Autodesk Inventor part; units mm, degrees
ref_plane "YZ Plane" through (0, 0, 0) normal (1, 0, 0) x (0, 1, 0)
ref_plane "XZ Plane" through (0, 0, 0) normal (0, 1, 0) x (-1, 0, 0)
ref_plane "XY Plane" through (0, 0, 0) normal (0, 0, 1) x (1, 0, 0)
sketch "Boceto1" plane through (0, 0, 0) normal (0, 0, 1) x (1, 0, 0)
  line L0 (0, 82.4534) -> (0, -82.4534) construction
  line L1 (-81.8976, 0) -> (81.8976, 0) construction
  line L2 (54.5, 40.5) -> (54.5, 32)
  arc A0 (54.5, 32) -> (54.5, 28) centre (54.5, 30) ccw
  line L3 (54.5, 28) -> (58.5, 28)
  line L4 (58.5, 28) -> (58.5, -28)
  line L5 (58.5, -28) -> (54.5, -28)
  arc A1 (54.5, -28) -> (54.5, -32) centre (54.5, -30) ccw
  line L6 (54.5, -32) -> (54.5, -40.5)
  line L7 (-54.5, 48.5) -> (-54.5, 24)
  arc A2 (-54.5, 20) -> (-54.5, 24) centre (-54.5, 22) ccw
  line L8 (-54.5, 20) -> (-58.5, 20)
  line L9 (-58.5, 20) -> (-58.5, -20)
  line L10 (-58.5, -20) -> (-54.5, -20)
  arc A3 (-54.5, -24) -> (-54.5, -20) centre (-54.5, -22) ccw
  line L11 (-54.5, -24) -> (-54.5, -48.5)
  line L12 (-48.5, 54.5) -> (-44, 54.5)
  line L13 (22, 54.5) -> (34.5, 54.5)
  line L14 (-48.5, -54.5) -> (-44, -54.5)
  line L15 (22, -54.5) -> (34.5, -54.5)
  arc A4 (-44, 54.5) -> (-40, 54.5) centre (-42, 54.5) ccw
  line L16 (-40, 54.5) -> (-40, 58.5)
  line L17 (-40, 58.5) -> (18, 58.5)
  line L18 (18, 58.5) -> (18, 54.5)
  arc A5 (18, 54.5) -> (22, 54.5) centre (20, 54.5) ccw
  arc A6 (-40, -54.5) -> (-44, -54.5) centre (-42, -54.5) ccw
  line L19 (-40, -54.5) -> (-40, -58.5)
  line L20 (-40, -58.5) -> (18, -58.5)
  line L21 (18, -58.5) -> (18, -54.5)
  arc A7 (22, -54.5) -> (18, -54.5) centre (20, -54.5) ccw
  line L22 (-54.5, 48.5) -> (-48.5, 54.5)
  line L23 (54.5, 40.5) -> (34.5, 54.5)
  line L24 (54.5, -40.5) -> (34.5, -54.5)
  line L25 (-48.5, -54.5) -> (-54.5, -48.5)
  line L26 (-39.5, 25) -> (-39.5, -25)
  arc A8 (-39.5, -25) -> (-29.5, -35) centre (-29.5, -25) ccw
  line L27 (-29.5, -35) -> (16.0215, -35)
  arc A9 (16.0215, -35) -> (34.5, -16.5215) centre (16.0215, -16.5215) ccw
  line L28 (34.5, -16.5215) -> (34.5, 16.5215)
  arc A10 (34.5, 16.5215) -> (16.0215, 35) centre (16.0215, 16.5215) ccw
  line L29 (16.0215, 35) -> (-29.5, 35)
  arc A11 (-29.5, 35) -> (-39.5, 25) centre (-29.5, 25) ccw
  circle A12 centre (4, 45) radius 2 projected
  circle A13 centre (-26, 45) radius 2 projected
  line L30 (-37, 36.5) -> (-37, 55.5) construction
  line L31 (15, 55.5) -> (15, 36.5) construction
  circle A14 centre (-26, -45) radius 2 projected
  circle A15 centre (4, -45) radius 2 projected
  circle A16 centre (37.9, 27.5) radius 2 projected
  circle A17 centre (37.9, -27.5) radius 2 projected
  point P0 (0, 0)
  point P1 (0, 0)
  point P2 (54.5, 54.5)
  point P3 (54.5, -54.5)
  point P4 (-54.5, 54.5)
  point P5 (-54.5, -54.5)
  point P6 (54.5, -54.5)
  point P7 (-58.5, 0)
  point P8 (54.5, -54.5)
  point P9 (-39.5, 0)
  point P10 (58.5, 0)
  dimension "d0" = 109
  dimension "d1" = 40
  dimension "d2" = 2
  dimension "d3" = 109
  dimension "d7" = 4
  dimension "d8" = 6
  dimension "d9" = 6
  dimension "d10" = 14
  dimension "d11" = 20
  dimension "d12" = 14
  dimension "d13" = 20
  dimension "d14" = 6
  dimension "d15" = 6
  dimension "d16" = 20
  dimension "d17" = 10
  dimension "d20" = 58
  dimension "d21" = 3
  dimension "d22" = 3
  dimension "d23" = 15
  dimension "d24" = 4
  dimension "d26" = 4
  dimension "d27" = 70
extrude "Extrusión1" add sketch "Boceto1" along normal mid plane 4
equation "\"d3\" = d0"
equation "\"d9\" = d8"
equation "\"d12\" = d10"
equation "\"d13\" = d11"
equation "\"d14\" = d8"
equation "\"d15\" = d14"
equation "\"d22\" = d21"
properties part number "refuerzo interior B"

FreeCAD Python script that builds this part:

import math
import FreeCAD as App
import Part
import Sketcher
from FreeCAD import Vector

doc = App.newDocument("Part")
body = doc.addObject("PartDesign::Body", "Body")

sketch1 = body.newObject("Sketcher::SketchObject", "Sketch")
sketch1.AttachmentSupport = (doc.getObject("XY_Plane"), [""])
sketch1.MapMode = "FlatFace"
sketch1.addGeometry(Part.LineSegment(Vector(54.5, 32, 0), Vector(54.5, 40.5, 0)), False)
sketch1.addGeometry(Part.LineSegment(Vector(54.5, 40.5, 0), Vector(34.5, 54.5, 0)), False)
sketch1.addGeometry(Part.LineSegment(Vector(34.5, 54.5, 0), Vector(22, 54.5, 0)), False)
sketch1.addGeometry(Part.ArcOfCircle(Part.Circle(Vector(20, 54.5, 0), Vector(0, 0, 1), 2), math.radians(180), math.radians(360)), False)
sketch1.addGeometry(Part.LineSegment(Vector(18, 54.5, 0), Vector(18, 58.5, 0)), False)
sketch1.addGeometry(Part.LineSegment(Vector(18, 58.5, 0), Vector(-40, 58.5, 0)), False)
sketch1.addGeometry(Part.LineSegment(Vector(-40, 58.5, 0), Vector(-40, 54.5, 0)), False)
sketch1.addGeometry(Part.ArcOfCircle(Part.Circle(Vector(-42, 54.5, 0), Vector(0, 0, 1), 2), math.radians(180), math.radians(360)), False)
sketch1.addGeometry(Part.LineSegment(Vector(-44, 54.5, 0), Vector(-48.5, 54.5, 0)), False)
sketch1.addGeometry(Part.LineSegment(Vector(-48.5, 54.5, 0), Vector(-54.5, 48.5, 0)), False)
sketch1.addGeometry(Part.LineSegment(Vector(-54.5, 48.5, 0), Vector(-54.5, 24, 0)), False)
sketch1.addGeometry(Part.ArcOfCircle(Part.Circle(Vector(-54.5, 22, 0), Vector(0, 0, 1), 2), math.radians(-90), math.radians(90)), False)
sketch1.addGeometry(Part.LineSegment(Vector(-54.5, 20, 0), Vector(-58.5, 20, 0)), False)
sketch1.addGeometry(Part.LineSegment(Vector(-58.5, 20, 0), Vector(-58.5, -20, 0)), False)
sketch1.addGeometry(Part.LineSegment(Vector(-58.5, -20, 0), Vector(-54.5, -20, 0)), False)
sketch1.addGeometry(Part.ArcOfCircle(Part.Circle(Vector(-54.5, -22, 0), Vector(0, 0, 1), 2), math.radians(-90), math.radians(90)), False)
sketch1.addGeometry(Part.LineSegment(Vector(-54.5, -24, 0), Vector(-54.5, -48.5, 0)), False)
sketch1.addGeometry(Part.LineSegment(Vector(-54.5, -48.5, 0), Vector(-48.5, -54.5, 0)), False)
sketch1.addGeometry(Part.LineSegment(Vector(-48.5, -54.5, 0), Vector(-44, -54.5, 0)), False)
sketch1.addGeometry(Part.ArcOfCircle(Part.Circle(Vector(-42, -54.5, 0), Vector(0, 0, 1), 2), math.radians(0), math.radians(180)), False)
sketch1.addGeometry(Part.LineSegment(Vector(-40, -54.5, 0), Vector(-40, -58.5, 0)), False)
sketch1.addGeometry(Part.LineSegment(Vector(-40, -58.5, 0), Vector(18, -58.5, 0)), False)
sketch1.addGeometry(Part.LineSegment(Vector(18, -58.5, 0), Vector(18, -54.5, 0)), False)
sketch1.addGeometry(Part.ArcOfCircle(Part.Circle(Vector(20, -54.5, 0), Vector(0, 0, 1), 2), math.radians(0), math.radians(180)), False)
sketch1.addGeometry(Part.LineSegment(Vector(22, -54.5, 0), Vector(34.5, -54.5, 0)), False)
sketch1.addGeometry(Part.LineSegment(Vector(34.5, -54.5, 0), Vector(54.5, -40.5, 0)), False)
sketch1.addGeometry(Part.LineSegment(Vector(54.5, -40.5, 0), Vector(54.5, -32, 0)), False)
sketch1.addGeometry(Part.ArcOfCircle(Part.Circle(Vector(54.5, -30, 0), Vector(0, 0, 1), 2), math.radians(90), math.radians(270)), False)
sketch1.addGeometry(Part.LineSegment(Vector(54.5, -28, 0), Vector(58.5, -28, 0)), False)
sketch1.addGeometry(Part.LineSegment(Vector(58.5, -28, 0), Vector(58.5, 28, 0)), False)
sketch1.addGeometry(Part.LineSegment(Vector(58.5, 28, 0), Vector(54.5, 28, 0)), False)
sketch1.addGeometry(Part.ArcOfCircle(Part.Circle(Vector(54.5, 30, 0), Vector(0, 0, 1), 2), math.radians(90), math.radians(270)), False)
sketch1.addGeometry(Part.Circle(Vector(-26, -45, 0), Vector(0, 0, 1), 2), False)
sketch1.addGeometry(Part.Circle(Vector(4, -45, 0), Vector(0, 0, 1), 2), False)
sketch1.addGeometry(Part.Circle(Vector(37.9, -27.5, 0), Vector(0, 0, 1), 2), False)
sketch1.addGeometry(Part.LineSegment(Vector(-39.5, -25, 0), Vector(-39.5, 25, 0)), False)
sketch1.addGeometry(Part.ArcOfCircle(Part.Circle(Vector(-29.5, 25, 0), Vector(0, 0, 1), 10), math.radians(90), math.radians(180)), False)
sketch1.addGeometry(Part.LineSegment(Vector(-29.5, 35, 0), Vector(16.0215, 35, 0)), False)
sketch1.addGeometry(Part.ArcOfCircle(Part.Circle(Vector(16.0215, 16.5215, 0), Vector(0, 0, 1), 18.4785), math.radians(0), math.radians(90)), False)
sketch1.addGeometry(Part.LineSegment(Vector(34.5, 16.5215, 0), Vector(34.5, -16.5215, 0)), False)
sketch1.addGeometry(Part.ArcOfCircle(Part.Circle(Vector(16.0215, -16.5215, 0), Vector(0, 0, 1), 18.4785), math.radians(-90), math.radians(0)), False)
sketch1.addGeometry(Part.LineSegment(Vector(16.0215, -35, 0), Vector(-29.5, -35, 0)), False)
sketch1.addGeometry(Part.ArcOfCircle(Part.Circle(Vector(-29.5, -25, 0), Vector(0, 0, 1), 10), math.radians(180), math.radians(270)), False)
sketch1.addGeometry(Part.Circle(Vector(-26, 45, 0), Vector(0, 0, 1), 2), False)
sketch1.addGeometry(Part.Circle(Vector(37.9, 27.5, 0), Vector(0, 0, 1), 2), False)
sketch1.addGeometry(Part.Circle(Vector(4, 45, 0), Vector(0, 0, 1), 2), False)
sketch1.addConstraint(Sketcher.Constraint("Coincident", 0, 2, 1, 1))
sketch1.addConstraint(Sketcher.Constraint("Coincident", 1, 2, 2, 1))
sketch1.addConstraint(Sketcher.Constraint("Coincident", 2, 2, 3, 2))
sketch1.addConstraint(Sketcher.Constraint("Tangent", 3, 1, 4, 1))
sketch1.addConstraint(Sketcher.Constraint("Coincident", 4, 2, 5, 1))
sketch1.addConstraint(Sketcher.Constraint("Coincident", 5, 2, 6, 1))
sketch1.addConstraint(Sketcher.Constraint("Tangent", 6, 2, 7, 2))
sketch1.addConstraint(Sketcher.Constraint("Coincident", 7, 1, 8, 1))
sketch1.addConstraint(Sketcher.Constraint("Coincident", 8, 2, 9, 1))
sketch1.addConstraint(Sketcher.Constraint("Coincident", 9, 2, 10, 1))
sketch1.addConstraint(Sketcher.Constraint("Coincident", 10, 2, 11, 2))
sketch1.addConstraint(Sketcher.Constraint("Tangent", 11, 1, 12, 1))
sketch1.addConstraint(Sketcher.Constraint("Coincident", 12, 2, 13, 1))
sketch1.addConstraint(Sketcher.Constraint("Coincident", 13, 2, 14, 1))
sketch1.addConstraint(Sketcher.Constraint("Tangent", 14, 2, 15, 2))
sketch1.addConstraint(Sketcher.Constraint("Coincident", 15, 1, 16, 1))
sketch1.addConstraint(Sketcher.Constraint("Coincident", 16, 2, 17, 1))
sketch1.addConstraint(Sketcher.Constraint("Coincident", 17, 2, 18, 1))
sketch1.addConstraint(Sketcher.Constraint("Coincident", 18, 2, 19, 2))
sketch1.addConstraint(Sketcher.Constraint("Tangent", 19, 1, 20, 1))
sketch1.addConstraint(Sketcher.Constraint("Coincident", 20, 2, 21, 1))
sketch1.addConstraint(Sketcher.Constraint("Coincident", 21, 2, 22, 1))
sketch1.addConstraint(Sketcher.Constraint("Tangent", 22, 2, 23, 2))
sketch1.addConstraint(Sketcher.Constraint("Coincident", 23, 1, 24, 1))
sketch1.addConstraint(Sketcher.Constraint("Coincident", 24, 2, 25, 1))
sketch1.addConstraint(Sketcher.Constraint("Coincident", 25, 2, 26, 1))
sketch1.addConstraint(Sketcher.Constraint("Coincident", 26, 2, 27, 2))
sketch1.addConstraint(Sketcher.Constraint("Tangent", 27, 1, 28, 1))
sketch1.addConstraint(Sketcher.Constraint("Coincident", 28, 2, 29, 1))
sketch1.addConstraint(Sketcher.Constraint("Coincident", 29, 2, 30, 1))
sketch1.addConstraint(Sketcher.Constraint("Tangent", 30, 2, 31, 2))
sketch1.addConstraint(Sketcher.Constraint("Coincident", 31, 1, 0, 1))
sketch1.addConstraint(Sketcher.Constraint("Tangent", 35, 2, 36, 2))
sketch1.addConstraint(Sketcher.Constraint("Tangent", 36, 1, 37, 1))
sketch1.addConstraint(Sketcher.Constraint("Tangent", 37, 2, 38, 2))
sketch1.addConstraint(Sketcher.Constraint("Tangent", 38, 1, 39, 1))
sketch1.addConstraint(Sketcher.Constraint("Tangent", 39, 2, 40, 2))
sketch1.addConstraint(Sketcher.Constraint("Tangent", 40, 1, 41, 1))
sketch1.addConstraint(Sketcher.Constraint("Tangent", 41, 2, 42, 2))
sketch1.addConstraint(Sketcher.Constraint("Tangent", 42, 1, 35, 1))
sketch1.addConstraint(Sketcher.Constraint("Vertical", 0))
sketch1.addConstraint(Sketcher.Constraint("Horizontal", 2))
sketch1.addConstraint(Sketcher.Constraint("Vertical", 4))
sketch1.addConstraint(Sketcher.Constraint("Horizontal", 5))
sketch1.addConstraint(Sketcher.Constraint("Vertical", 6))
sketch1.addConstraint(Sketcher.Constraint("Horizontal", 8))
sketch1.addConstraint(Sketcher.Constraint("Vertical", 10))
sketch1.addConstraint(Sketcher.Constraint("Horizontal", 12))
sketch1.addConstraint(Sketcher.Constraint("Vertical", 13))
sketch1.addConstraint(Sketcher.Constraint("Horizontal", 14))
sketch1.addConstraint(Sketcher.Constraint("Vertical", 16))
sketch1.addConstraint(Sketcher.Constraint("Horizontal", 18))
sketch1.addConstraint(Sketcher.Constraint("Vertical", 20))
sketch1.addConstraint(Sketcher.Constraint("Horizontal", 21))
sketch1.addConstraint(Sketcher.Constraint("Vertical", 22))
sketch1.addConstraint(Sketcher.Constraint("Horizontal", 24))
sketch1.addConstraint(Sketcher.Constraint("Vertical", 26))
sketch1.addConstraint(Sketcher.Constraint("Horizontal", 28))
sketch1.addConstraint(Sketcher.Constraint("Vertical", 29))
sketch1.addConstraint(Sketcher.Constraint("Horizontal", 30))
sketch1.addConstraint(Sketcher.Constraint("Vertical", 35))
sketch1.addConstraint(Sketcher.Constraint("Horizontal", 37))
sketch1.addConstraint(Sketcher.Constraint("Vertical", 39))
sketch1.addConstraint(Sketcher.Constraint("Horizontal", 41))
sketch1.addConstraint(Sketcher.Constraint("Equal", 3, 7))
sketch1.addConstraint(Sketcher.Constraint("Equal", 7, 11))
sketch1.addConstraint(Sketcher.Constraint("Equal", 11, 15))
sketch1.addConstraint(Sketcher.Constraint("Equal", 15, 19))
sketch1.addConstraint(Sketcher.Constraint("Equal", 19, 23))
sketch1.addConstraint(Sketcher.Constraint("Equal", 23, 27))
sketch1.addConstraint(Sketcher.Constraint("Equal", 27, 31))
sketch1.addConstraint(Sketcher.Constraint("Equal", 31, 32))
sketch1.addConstraint(Sketcher.Constraint("Equal", 32, 33))
sketch1.addConstraint(Sketcher.Constraint("Equal", 33, 34))
sketch1.addConstraint(Sketcher.Constraint("Equal", 38, 40))
sketch1.addConstraint(Sketcher.Constraint("Equal", 36, 42))
sketch1.addConstraint(Sketcher.Constraint("Equal", 34, 43))
sketch1.addConstraint(Sketcher.Constraint("Equal", 43, 44))
sketch1.addConstraint(Sketcher.Constraint("Equal", 44, 45))
sketch1.addConstraint(Sketcher.Constraint("Symmetric", 11, 3, 15, 3, -1))
sketch1.addConstraint(Sketcher.Constraint("Symmetric", 7, 3, 19, 3, -1))
sketch1.addConstraint(Sketcher.Constraint("Symmetric", 3, 3, 23, 3, -1))
sketch1.addConstraint(Sketcher.Constraint("Symmetric", 27, 3, 31, 3, -1))
sketch1.addConstraint(Sketcher.Constraint("Symmetric", 32, 3, 43, 3, -1))
sketch1.addConstraint(Sketcher.Constraint("Symmetric", 34, 3, 44, 3, -1))
sketch1.addConstraint(Sketcher.Constraint("Symmetric", 33, 3, 45, 3, -1))
sketch1.addConstraint(Sketcher.Constraint("Symmetric", 9, 2, 16, 2, -1))
sketch1.addConstraint(Sketcher.Constraint("Symmetric", 8, 2, 17, 2, -1))
sketch1.addConstraint(Sketcher.Constraint("Symmetric", 1, 2, 24, 2, -1))
sketch1.addConstraint(Sketcher.Constraint("Symmetric", 0, 2, 25, 2, -1))
sketch1.addConstraint(Sketcher.Constraint("Perpendicular", 9, 17))
sketch1.addConstraint(Sketcher.Constraint("Horizontal", 3, 3, 7, 3))
sketch1.addConstraint(Sketcher.Constraint("Horizontal", 32, 3, 33, 3))
sketch1.addConstraint(Sketcher.Constraint("Horizontal", 7, 3, 1, 2))
sketch1.addConstraint(Sketcher.Constraint("Horizontal", 6, 2, 7, 1))
sketch1.addConstraint(Sketcher.Constraint("Vertical", 31, 3, 0, 2))
sketch1.addConstraint(Sketcher.Constraint("Vertical", 15, 3, 9, 2))
sketch1.addConstraint(Sketcher.Constraint("Vertical", 24, 2, 38, 1))
sketch1.addConstraint(Sketcher.Constraint("Equal", 14, 28))
sketch1.addConstraint(Sketcher.Constraint("Equal", 30, 4))
sketch1.addConstraint(Sketcher.Constraint("Equal", 6, 20))
sketch1.addConstraint(Sketcher.Constraint("Diameter", 32, 4.0))
sketch1.addConstraint(Sketcher.Constraint("Radius", 36, 10.0))
sketch1.addConstraint(Sketcher.Constraint("DistanceX", 5, 2, 5, 1, 58.0))
sketch1.addConstraint(Sketcher.Constraint("DistanceX", 12, 2, 12, 1, 4.0))
sketch1.addConstraint(Sketcher.Constraint("DistanceY", 13, 2, 13, 1, 40.0))
sketch1.addConstraint(Sketcher.Constraint("DistanceX", -1, 1, 3, 3, 20.0))
sketch1.addConstraint(Sketcher.Constraint("DistanceX", -1, 1, 33, 3, 4.0))
sketch1.addConstraint(Sketcher.Constraint("DistanceY", 19, 3, 7, 3, 109.0))
sketch1.addConstraint(Sketcher.Constraint("DistanceX", 15, 3, 27, 3, 109.0))
sketch1.addConstraint(Sketcher.Constraint("DistanceY", 32, 3, 27, 3, 15.0))
sketch1.addConstraint(Sketcher.Constraint("DistanceY", 11, 3, 36, 3, 3.0))
sketch1.addConstraint(Sketcher.Constraint("DistanceY", 32, 3, 36, 3, 70.0))
sketch1.addConstraint(Sketcher.Constraint("DistanceY", 32, 3, 42, 3, 20.0))
sketch1.addConstraint(Sketcher.Constraint("DistanceY", 0, 2, 3, 3, 14.0))
sketch1.addConstraint(Sketcher.Constraint("DistanceX", 1, 2, 0, 2, 20.0))
sketch1.addConstraint(Sketcher.Constraint("DistanceX", 5, 2, 43, 3, 14.0))
sketch1.addConstraint(Sketcher.Constraint("DistanceX", 9, 2, 8, 2, 6.0))
sketch1.addConstraint(Sketcher.Constraint("DistanceX", 10, 2, 35, 2, 15.0))
sketch1.addConstraint(Sketcher.Constraint("DistanceX", 2, 2, 2, 1, 12.5))
sketch1.addConstraint(Sketcher.Constraint("DistanceY", 23, 3, 34, 3, 27.0))
sketch1.addConstraint(Sketcher.Constraint("DistanceX", -1, 1, 34, 3, 37.9))
sketch1.addConstraint(Sketcher.Constraint("Radius", 38, 18.4785))
pad1 = body.newObject("PartDesign::Pad", "Pad")
pad1.Profile = sketch1
pad1.Length = 4
pad1.Midplane = True

doc.recompute()
